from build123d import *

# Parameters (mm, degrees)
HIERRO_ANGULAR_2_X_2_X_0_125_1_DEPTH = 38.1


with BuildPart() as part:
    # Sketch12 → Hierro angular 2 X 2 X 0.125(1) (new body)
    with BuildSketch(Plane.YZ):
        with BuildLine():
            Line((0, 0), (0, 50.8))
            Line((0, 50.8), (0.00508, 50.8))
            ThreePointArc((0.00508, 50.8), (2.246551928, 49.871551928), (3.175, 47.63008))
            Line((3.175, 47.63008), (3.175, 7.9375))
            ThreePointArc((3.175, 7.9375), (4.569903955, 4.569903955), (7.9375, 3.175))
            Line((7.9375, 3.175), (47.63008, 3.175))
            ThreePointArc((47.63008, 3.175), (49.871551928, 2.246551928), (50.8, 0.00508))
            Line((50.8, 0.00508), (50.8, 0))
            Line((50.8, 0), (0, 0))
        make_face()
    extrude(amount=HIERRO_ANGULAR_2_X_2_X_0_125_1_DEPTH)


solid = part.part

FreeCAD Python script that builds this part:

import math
import FreeCAD as App
import Part
import Sketcher
Q = App.Units.Quantity

doc = App.newDocument("Part")
body = doc.addObject("PartDesign::Body", "Body")

# Sketch on YZ plane
sketch1 = doc.addObject("Sketcher::SketchObject", "Sketch")
body.addObject(sketch1)
sketch1.AttachmentSupport = (doc.YZ_Plane, [""])
sketch1.MapMode = "FlatFace"
sketch1.addGeometry(Part.LineSegment(App.Vector(0, 50.8, 0), App.Vector(0, 0, 0)), False)
sketch1.addGeometry(Part.LineSegment(App.Vector(0, 0, 0), App.Vector(50.8, 0, 0)), False)
sketch1.addGeometry(Part.LineSegment(App.Vector(50.8, 0, 0), App.Vector(50.8, 0.005, 0)), False)
sketch1.addGeometry(Part.ArcOfCircle(Part.Circle(App.Vector(47.63, 0.005, 0), App.Vector(0, 0, 1), 3.17), math.radians(0), math.radians(90)), False)
sketch1.addGeometry(Part.LineSegment(App.Vector(47.63, 3.175, 0), App.Vector(7.938, 3.175, 0)), False)
sketch1.addGeometry(Part.ArcOfCircle(Part.Circle(App.Vector(7.938, 7.938, 0), App.Vector(0, 0, 1), 4.763), math.radians(-180), math.radians(-90)), False)
sketch1.addGeometry(Part.LineSegment(App.Vector(3.175, 7.938, 0), App.Vector(3.175, 47.63, 0)), False)
sketch1.addGeometry(Part.ArcOfCircle(Part.Circle(App.Vector(0.005, 47.63, 0), App.Vector(0, 0, 1), 3.17), math.radians(0), math.radians(90)), False)
sketch1.addGeometry(Part.LineSegment(App.Vector(0.005, 50.8, 0), App.Vector(0, 50.8, 0)), False)
sketch1.addConstraint(Sketcher.Constraint("Coincident", 0, 2, 1, 1))
sketch1.addConstraint(Sketcher.Constraint("Coincident", 1, 2, 2, 1))
sketch1.addConstraint(Sketcher.Constraint("Tangent", 2, 2, 3, 1))
sketch1.addConstraint(Sketcher.Constraint("Tangent", 3, 2, 4, 1))
sketch1.addConstraint(Sketcher.Constraint("Tangent", 4, 2, 5, 2))
sketch1.addConstraint(Sketcher.Constraint("Tangent", 5, 1, 6, 1))
sketch1.addConstraint(Sketcher.Constraint("Tangent", 6, 2, 7, 1))
sketch1.addConstraint(Sketcher.Constraint("Tangent", 7, 2, 8, 1))
sketch1.addConstraint(Sketcher.Constraint("Coincident", 8, 2, 0, 1))
sketch1.addConstraint(Sketcher.Constraint("Vertical", 0))
sketch1.addConstraint(Sketcher.Constraint("Horizontal", 1))
sketch1.addConstraint(Sketcher.Constraint("Horizontal", 4))
sketch1.addConstraint(Sketcher.Constraint("Vertical", 6))
sketch1.addConstraint(Sketcher.Constraint("Coincident", 0, 2, -1, 1))
sketch1.addConstraint(Sketcher.Constraint("Equal", 3, 7))
sketch1.addConstraint(Sketcher.Constraint("Horizontal", 3, 3, 2, 2))
sketch1.addConstraint(Sketcher.Constraint("Equal", 1, 0))
sketch1.addConstraint(Sketcher.Constraint("Equal", 8, 2))
sketch1.addConstraint(Sketcher.Constraint("Equal", 4, 6))
sketch1.addConstraint(Sketcher.Constraint("DistanceX", 1, 1, 1, 2, Q("2 in")))
sketch1.addConstraint(Sketcher.Constraint("Radius", 5, Q("0.1875 in")))
sketch1.addConstraint(Sketcher.Constraint("Radius", 3, Q("0.1248 in")))
sketch1.addConstraint(Sketcher.Constraint("DistanceX", 4, 2, 4, 1, Q("1.5627 in")))
pad1 = doc.addObject("PartDesign::Pad", "Pad")
body.addObject(pad1)
pad1.Profile = sketch1
pad1.Length = Q("1.5 in")

doc.recompute()
